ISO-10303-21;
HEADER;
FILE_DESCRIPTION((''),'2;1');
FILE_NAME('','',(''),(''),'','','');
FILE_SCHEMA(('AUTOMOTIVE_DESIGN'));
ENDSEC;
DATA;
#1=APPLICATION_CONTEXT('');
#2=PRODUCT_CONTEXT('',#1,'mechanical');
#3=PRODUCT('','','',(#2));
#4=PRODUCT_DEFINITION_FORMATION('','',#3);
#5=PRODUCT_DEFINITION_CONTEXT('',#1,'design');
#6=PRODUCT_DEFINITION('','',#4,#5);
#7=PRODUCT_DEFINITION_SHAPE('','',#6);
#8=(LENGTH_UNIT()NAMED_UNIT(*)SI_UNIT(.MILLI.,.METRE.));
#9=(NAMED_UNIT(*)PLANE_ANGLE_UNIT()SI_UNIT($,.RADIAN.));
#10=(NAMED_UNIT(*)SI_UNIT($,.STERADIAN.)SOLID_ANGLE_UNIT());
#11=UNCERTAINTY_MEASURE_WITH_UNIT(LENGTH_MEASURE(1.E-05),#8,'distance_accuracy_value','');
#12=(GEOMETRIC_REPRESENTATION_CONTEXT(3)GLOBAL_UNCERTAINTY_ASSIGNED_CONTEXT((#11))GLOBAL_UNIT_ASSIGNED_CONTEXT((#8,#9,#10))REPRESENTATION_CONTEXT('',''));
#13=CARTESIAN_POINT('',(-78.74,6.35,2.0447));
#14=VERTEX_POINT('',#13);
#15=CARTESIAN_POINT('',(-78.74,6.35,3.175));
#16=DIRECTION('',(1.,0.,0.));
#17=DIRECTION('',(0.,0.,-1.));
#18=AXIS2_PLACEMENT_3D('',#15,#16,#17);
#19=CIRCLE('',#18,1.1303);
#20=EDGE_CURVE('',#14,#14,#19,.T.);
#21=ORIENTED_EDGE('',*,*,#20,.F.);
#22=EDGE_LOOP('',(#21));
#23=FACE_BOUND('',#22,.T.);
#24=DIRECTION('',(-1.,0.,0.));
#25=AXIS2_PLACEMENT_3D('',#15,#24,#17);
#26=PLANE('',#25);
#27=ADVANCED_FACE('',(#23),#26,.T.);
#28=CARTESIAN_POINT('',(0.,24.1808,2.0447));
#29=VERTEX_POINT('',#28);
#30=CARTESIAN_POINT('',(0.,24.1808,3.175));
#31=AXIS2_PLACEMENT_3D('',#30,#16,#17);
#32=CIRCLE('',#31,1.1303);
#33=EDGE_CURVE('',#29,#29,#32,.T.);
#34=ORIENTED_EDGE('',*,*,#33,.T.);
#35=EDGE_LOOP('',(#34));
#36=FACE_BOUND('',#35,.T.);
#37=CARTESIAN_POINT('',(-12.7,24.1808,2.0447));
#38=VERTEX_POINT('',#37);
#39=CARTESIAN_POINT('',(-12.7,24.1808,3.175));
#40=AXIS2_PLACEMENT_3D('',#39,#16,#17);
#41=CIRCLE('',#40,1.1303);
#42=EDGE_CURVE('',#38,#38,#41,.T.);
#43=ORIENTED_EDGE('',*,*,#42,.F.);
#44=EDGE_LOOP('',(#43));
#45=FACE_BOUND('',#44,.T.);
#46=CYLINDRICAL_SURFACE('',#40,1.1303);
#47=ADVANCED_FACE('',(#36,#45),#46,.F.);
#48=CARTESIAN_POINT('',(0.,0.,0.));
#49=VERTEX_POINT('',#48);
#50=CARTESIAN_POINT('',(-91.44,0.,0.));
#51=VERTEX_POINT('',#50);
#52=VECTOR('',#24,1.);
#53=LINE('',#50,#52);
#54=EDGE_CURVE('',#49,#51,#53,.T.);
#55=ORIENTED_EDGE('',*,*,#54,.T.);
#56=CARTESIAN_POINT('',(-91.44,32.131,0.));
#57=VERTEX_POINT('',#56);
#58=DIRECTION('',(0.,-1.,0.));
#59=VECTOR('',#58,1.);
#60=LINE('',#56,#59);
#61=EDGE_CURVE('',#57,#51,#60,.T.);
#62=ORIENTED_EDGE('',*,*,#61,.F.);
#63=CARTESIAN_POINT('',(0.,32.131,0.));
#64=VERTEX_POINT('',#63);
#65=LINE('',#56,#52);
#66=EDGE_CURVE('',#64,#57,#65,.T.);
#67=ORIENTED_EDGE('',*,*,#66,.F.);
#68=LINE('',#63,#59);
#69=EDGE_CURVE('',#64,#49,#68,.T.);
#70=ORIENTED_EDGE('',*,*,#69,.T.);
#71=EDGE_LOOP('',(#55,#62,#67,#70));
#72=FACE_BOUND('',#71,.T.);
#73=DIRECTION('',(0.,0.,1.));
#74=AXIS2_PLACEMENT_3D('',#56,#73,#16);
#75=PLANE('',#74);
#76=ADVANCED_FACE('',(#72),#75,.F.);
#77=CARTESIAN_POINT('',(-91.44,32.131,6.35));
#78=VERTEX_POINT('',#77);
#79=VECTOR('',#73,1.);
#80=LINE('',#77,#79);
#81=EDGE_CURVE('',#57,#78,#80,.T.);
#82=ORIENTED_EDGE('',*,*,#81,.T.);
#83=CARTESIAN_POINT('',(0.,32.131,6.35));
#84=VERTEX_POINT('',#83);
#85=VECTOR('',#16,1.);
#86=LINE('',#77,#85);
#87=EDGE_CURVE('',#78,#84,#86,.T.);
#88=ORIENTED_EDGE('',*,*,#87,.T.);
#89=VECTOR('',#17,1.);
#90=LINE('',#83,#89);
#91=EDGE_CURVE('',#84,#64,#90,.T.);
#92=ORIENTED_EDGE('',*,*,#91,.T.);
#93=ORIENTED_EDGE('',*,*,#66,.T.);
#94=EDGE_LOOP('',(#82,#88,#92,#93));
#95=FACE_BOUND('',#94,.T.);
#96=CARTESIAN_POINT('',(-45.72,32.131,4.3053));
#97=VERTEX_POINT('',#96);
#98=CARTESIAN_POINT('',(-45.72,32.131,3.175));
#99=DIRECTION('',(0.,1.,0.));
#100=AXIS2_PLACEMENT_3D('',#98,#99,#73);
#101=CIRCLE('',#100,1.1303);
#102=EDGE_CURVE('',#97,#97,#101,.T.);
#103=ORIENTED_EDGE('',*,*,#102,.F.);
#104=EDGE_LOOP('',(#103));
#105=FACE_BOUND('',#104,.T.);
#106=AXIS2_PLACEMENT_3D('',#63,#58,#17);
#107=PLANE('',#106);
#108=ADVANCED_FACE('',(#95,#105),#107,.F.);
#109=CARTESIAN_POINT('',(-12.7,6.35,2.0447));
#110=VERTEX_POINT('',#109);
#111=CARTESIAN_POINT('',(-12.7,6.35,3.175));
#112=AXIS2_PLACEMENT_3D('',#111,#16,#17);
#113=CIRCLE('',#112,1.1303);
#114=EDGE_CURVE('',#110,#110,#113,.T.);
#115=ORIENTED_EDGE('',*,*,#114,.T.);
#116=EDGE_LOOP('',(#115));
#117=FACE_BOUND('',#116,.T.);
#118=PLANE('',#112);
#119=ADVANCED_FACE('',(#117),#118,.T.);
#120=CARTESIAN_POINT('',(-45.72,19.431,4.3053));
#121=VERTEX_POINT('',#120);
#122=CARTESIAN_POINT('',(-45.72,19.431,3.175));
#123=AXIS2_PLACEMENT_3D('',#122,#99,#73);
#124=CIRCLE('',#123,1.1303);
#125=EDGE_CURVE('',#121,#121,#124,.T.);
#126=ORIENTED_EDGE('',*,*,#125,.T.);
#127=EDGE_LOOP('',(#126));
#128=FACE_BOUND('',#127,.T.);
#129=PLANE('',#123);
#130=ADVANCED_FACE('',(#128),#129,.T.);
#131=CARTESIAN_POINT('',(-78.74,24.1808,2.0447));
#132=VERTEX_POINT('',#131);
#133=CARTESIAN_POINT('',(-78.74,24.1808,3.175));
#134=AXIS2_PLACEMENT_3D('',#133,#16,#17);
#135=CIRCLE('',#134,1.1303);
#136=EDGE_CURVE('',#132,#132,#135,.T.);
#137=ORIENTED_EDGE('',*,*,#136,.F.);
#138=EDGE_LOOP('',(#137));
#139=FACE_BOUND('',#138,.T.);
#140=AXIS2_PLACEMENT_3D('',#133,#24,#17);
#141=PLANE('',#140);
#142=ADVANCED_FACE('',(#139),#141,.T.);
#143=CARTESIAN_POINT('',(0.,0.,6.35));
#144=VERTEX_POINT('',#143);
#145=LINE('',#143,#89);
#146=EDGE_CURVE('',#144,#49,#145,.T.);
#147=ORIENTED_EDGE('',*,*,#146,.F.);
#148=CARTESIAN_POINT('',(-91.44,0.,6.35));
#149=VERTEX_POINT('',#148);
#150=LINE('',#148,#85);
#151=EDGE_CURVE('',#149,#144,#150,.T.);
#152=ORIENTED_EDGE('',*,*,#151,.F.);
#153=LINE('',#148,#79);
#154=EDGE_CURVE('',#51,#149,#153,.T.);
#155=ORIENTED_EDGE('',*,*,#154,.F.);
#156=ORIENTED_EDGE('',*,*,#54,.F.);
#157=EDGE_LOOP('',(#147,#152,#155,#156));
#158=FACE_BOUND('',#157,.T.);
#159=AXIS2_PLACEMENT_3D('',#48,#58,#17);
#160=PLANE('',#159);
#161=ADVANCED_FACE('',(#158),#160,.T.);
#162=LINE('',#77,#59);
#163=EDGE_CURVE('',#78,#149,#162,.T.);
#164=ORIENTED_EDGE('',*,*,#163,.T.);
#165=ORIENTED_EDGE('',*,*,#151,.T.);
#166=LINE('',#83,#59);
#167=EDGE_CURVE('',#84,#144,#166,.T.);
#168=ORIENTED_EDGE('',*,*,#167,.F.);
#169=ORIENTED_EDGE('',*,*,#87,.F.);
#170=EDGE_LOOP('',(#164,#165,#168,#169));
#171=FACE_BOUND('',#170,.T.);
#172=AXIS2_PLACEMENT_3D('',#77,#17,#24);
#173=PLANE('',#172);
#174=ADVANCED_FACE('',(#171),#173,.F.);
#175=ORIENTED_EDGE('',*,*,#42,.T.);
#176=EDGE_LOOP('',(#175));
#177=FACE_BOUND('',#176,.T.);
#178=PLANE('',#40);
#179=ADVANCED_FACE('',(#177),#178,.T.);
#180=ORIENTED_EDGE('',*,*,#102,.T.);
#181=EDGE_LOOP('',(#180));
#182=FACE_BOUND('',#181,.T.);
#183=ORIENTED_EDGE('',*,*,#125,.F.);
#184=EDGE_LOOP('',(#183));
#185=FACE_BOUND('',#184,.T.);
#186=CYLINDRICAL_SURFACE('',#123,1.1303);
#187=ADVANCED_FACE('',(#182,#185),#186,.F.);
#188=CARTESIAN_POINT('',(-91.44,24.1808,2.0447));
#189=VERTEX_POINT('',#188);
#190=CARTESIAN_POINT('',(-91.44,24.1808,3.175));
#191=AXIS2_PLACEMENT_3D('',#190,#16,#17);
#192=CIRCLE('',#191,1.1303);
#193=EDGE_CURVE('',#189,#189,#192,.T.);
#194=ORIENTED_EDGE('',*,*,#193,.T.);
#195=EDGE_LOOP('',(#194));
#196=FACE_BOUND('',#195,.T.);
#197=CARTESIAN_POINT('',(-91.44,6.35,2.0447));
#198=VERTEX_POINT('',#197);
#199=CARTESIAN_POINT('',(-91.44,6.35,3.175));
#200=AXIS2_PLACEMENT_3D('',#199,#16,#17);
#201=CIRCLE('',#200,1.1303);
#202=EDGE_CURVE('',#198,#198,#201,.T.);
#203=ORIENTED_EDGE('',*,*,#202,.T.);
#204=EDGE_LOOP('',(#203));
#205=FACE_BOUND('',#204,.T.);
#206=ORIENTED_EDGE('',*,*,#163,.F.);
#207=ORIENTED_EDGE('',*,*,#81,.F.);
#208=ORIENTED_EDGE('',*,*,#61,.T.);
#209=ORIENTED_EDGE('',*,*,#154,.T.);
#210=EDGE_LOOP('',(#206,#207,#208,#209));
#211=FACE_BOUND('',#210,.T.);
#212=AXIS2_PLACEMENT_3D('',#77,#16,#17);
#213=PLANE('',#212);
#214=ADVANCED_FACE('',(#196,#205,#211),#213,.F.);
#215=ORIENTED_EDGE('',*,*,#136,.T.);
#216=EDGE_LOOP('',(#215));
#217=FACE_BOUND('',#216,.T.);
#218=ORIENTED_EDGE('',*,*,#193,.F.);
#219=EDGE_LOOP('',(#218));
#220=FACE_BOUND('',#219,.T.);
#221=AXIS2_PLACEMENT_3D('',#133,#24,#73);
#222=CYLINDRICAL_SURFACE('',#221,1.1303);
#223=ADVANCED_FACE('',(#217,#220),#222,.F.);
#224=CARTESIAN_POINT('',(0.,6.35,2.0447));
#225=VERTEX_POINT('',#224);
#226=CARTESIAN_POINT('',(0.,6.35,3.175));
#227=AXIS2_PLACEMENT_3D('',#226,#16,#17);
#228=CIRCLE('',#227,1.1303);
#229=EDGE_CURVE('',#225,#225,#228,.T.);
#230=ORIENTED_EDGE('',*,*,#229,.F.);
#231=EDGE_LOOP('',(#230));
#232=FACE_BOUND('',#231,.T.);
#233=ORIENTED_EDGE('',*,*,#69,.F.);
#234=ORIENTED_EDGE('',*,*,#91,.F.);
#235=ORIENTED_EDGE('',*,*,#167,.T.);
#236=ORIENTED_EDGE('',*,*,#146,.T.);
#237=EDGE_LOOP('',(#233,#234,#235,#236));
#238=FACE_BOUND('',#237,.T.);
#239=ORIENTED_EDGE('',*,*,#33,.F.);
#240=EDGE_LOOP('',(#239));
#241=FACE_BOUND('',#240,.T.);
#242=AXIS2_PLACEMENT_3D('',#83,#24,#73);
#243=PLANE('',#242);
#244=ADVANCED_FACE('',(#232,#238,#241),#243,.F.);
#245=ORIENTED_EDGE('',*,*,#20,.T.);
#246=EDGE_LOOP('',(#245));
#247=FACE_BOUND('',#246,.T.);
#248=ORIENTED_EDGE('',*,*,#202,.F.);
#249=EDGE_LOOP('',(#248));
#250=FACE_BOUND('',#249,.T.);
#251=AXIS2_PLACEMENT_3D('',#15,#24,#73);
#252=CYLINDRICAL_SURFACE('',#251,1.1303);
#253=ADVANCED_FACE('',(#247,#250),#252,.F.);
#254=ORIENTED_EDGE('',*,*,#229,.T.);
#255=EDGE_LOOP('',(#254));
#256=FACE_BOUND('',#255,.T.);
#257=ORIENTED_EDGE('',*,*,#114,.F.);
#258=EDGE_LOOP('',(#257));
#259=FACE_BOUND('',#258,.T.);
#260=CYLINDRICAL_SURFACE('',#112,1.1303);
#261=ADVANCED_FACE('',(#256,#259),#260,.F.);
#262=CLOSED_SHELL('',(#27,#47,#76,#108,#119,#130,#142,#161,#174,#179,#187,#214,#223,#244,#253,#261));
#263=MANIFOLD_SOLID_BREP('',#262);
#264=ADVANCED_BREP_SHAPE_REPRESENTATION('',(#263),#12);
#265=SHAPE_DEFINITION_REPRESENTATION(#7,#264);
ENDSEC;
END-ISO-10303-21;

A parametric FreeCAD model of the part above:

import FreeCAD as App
import Part
import Sketcher
Q = App.Units.Quantity


def add_polygon(sketch, points):
    """Adds a closed chain of lines whose ends are joined by coincident constraints."""
    first, n = sketch.GeometryCount, len(points)
    for a, b in zip(points, points[1:] + points[:1]):
        sketch.addGeometry(Part.LineSegment(App.Vector(*a, 0), App.Vector(*b, 0)), False)
    for i in range(n):
        sketch.addConstraint(Sketcher.Constraint("Coincident", first + i, 2, first + (i + 1) % n, 1))

doc = App.newDocument("Part")
body = doc.addObject("PartDesign::Body", "Body")

# Sketch on XZ plane
sketch1 = body.newObject("Sketcher::SketchObject", "Sketch")
sketch1.AttachmentSupport = (doc.getObject("XZ_Plane"), [""])
sketch1.MapMode = "FlatFace"
add_polygon(sketch1, [(-91, 0), (-91, 6), (0, 6), (0, 0)])  # lines 0-3
sketch1.addConstraint([
    Sketcher.Constraint("Vertical", 0),
    Sketcher.Constraint("Horizontal", 1),
    Sketcher.Constraint("Vertical", 2),
    Sketcher.Constraint("Horizontal", 3),
    Sketcher.Constraint("Coincident", 2, 2, -1, 1),
    Sketcher.Constraint("DistanceX", 1, 1, 1, 2, Q("3.6 in")),
    Sketcher.Constraint("DistanceY", 0, 1, 0, 2, Q("0.25 in")),
])
pad1 = body.newObject("PartDesign::Pad", "Pad")
pad1.Profile = sketch1
pad1.Length = Q("1.265 in")
pad1.Reversed = True

# Sketch on YZ plane
sketch2 = body.newObject("Sketcher::SketchObject", "Sketch001")
sketch2.AttachmentSupport = (doc.getObject("YZ_Plane"), [""])
sketch2.MapMode = "FlatFace"
sketch2.addGeometry([
    Part.Circle(App.Vector(24.2, 3.2, 0), App.Vector(0, 0, 1), 1.1),
    Part.Circle(App.Vector(6.3, 3.2, 0), App.Vector(0, 0, 1), 1.1),
], False)
sketch2.addConstraint([
    Sketcher.Constraint("Equal", 0, 1),
    Sketcher.Constraint("Horizontal", 0, 3, 1, 3),
    Sketcher.Constraint("Diameter", 0, Q("0.089 in")),
    Sketcher.Constraint("DistanceX", -1, 1, 1, 3, Q("0.25 in")),
    Sketcher.Constraint("DistanceX", -1, 1, 0, 3, Q("0.952 in")),
    Sketcher.Constraint("DistanceY", -1, 1, 0, 3, Q("0.125 in")),
])
pocket1 = body.newObject("PartDesign::Pocket", "Pocket")
pocket1.Profile = sketch2
pocket1.Length = Q("0.5 in")
doc.recompute()

datumplane = body.newObject("PartDesign::Plane", "DatumPlane")
datumplane.AttachmentSupport = (doc.getObject("YZ_Plane"), [""])
datumplane.MapMode = "FlatFace"
datumplane.AttachmentOffset = App.Placement(App.Vector(0, 0, -1.8 * 25.4), App.Rotation())
mirrored = body.newObject("PartDesign::Mirrored", "Mirrored")
mirrored.Originals = [pocket1]
mirrored.MirrorPlane = (datumplane, [""])
body.Tip = mirrored

# Sketch on XZ plane
sketch3 = body.newObject("Sketcher::SketchObject", "Sketch002")
sketch3.AttachmentSupport = (doc.getObject("XZ_Plane"), [""])
sketch3.MapMode = "FlatFace"
sketch3.AttachmentOffset = App.Placement(App.Vector(0, 0, -1.265 * 25.4), App.Rotation())
sketch3.addGeometry(Part.Circle(App.Vector(-45.7, 3.2, 0), App.Vector(0, 0, 1), 1.1), False)
sketch3.addConstraint([
    Sketcher.Constraint("Diameter", 0, Q("0.089 in")),
    Sketcher.Constraint("DistanceX", 0, 3, -1, 1, Q("1.8 in")),
    Sketcher.Constraint("DistanceY", -1, 1, 0, 3, Q("0.125 in")),
])
pocket2 = body.newObject("PartDesign::Pocket", "Pocket001")
pocket2.Profile = sketch3
pocket2.Length = Q("0.5 in")
pocket2.Reversed = True

doc.recompute()
